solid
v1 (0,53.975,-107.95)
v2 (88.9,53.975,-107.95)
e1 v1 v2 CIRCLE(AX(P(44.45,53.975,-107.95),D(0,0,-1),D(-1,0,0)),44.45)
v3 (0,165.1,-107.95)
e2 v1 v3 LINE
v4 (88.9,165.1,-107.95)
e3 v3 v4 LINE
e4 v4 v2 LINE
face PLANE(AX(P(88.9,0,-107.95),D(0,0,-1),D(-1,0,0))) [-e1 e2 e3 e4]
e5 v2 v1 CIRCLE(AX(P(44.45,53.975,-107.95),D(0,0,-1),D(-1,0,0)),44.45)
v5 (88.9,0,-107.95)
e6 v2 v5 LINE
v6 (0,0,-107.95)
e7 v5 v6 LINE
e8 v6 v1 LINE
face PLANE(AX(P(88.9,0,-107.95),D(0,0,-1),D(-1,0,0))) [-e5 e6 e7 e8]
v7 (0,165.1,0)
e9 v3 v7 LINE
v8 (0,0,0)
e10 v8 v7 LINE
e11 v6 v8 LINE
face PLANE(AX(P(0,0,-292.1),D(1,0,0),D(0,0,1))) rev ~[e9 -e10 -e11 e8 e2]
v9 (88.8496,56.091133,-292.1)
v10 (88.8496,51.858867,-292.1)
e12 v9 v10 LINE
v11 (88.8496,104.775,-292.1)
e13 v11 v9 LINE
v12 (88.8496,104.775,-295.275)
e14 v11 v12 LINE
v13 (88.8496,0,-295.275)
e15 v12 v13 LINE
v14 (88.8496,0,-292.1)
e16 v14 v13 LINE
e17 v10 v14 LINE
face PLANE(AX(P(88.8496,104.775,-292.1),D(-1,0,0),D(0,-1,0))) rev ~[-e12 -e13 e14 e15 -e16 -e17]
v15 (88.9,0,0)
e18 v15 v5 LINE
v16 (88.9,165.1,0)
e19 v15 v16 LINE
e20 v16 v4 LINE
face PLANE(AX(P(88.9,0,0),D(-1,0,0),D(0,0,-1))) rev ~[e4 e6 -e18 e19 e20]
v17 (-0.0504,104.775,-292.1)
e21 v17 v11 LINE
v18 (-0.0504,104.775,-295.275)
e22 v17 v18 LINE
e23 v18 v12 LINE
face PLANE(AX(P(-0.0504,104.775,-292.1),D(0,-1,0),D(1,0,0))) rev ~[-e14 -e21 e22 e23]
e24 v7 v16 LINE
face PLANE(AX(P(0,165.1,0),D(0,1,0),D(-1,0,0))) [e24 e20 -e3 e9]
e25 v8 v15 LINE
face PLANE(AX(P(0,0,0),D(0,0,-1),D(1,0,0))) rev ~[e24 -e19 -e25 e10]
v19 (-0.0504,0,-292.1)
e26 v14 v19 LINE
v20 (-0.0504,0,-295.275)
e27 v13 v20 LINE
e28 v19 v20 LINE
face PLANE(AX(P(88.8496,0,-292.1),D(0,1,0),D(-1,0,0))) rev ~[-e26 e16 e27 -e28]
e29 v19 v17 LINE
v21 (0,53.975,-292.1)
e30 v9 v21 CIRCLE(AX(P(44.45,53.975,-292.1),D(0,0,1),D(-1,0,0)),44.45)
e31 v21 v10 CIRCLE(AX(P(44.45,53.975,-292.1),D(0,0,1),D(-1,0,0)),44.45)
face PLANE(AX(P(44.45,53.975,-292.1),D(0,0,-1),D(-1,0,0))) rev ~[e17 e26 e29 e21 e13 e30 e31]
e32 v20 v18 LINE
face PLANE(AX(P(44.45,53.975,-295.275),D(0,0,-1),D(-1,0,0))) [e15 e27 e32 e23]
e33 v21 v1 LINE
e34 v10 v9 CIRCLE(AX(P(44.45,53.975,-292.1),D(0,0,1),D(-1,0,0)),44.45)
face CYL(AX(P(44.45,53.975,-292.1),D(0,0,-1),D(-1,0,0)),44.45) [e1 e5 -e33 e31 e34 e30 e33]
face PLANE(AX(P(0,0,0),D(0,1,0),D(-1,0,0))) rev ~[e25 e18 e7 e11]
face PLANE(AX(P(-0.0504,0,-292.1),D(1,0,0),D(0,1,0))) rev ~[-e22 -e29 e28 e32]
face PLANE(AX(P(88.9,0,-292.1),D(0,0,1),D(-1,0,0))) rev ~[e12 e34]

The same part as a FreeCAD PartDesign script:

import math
import FreeCAD as App
import Part
import Sketcher
from FreeCAD import Vector
Q = App.Units.Quantity


def add_polygon(sketch, points):
    """Adds a closed chain of lines whose ends are joined by coincident constraints."""
    first, n = sketch.GeometryCount, len(points)
    for a, b in zip(points, points[1:] + points[:1]):
        sketch.addGeometry(Part.LineSegment(App.Vector(*a, 0), App.Vector(*b, 0)), False)
    for i in range(n):
        sketch.addConstraint(Sketcher.Constraint("Coincident", first + i, 2, first + (i + 1) % n, 1))

doc = App.newDocument("Part")
body = doc.addObject("PartDesign::Body", "Body")

# Sketch on XZ plane
sketch1 = body.newObject("Sketcher::SketchObject", "Sketch")
sketch1.AttachmentSupport = (doc.getObject("XZ_Plane"), [""])
sketch1.MapMode = "FlatFace"
add_polygon(sketch1, [(0, -292), (0, 0), (89, 0), (89, -292)])  # lines 0-3
sketch1.addConstraint([
    Sketcher.Constraint("Vertical", 0),
    Sketcher.Constraint("Horizontal", 1),
    Sketcher.Constraint("Vertical", 2),
    Sketcher.Constraint("Horizontal", 3),
    Sketcher.Constraint("Coincident", 0, 2, -1, 1),
    Sketcher.Constraint("DistanceX", 1, 1, 1, 2, Q("3.5 in")),
    Sketcher.Constraint("DistanceY", 0, 1, 0, 2, Q("11.5 in")),
])
pad1 = body.newObject("PartDesign::Pad", "Pad")
pad1.Profile = sketch1
pad1.Length = Q("6.5 in")
pad1.Reversed = True

# Sketch on XY plane
sketch2 = body.newObject("Sketcher::SketchObject", "Sketch001")
sketch2.AttachmentSupport = (doc.getObject("XY_Plane"), [""])
sketch2.MapMode = "FlatFace"
sketch2.AttachmentOffset = App.Placement(Vector(0, 0, -11.5 * 25.4), App.Rotation())
sketch2.addGeometry([
    Part.LineSegment(Vector(0, 54, 0), Vector(0, 165, 0)),  # 0
    Part.LineSegment(Vector(0, 165, 0), Vector(89, 165, 0)),  # 1
    Part.LineSegment(Vector(89, 165, 0), Vector(89, 54, 0)),  # 2
    Part.ArcOfCircle(Part.Circle(Vector(44, 54, 0), Vector(0, 0, 1), 44), math.radians(0), math.radians(180)),  # 3
    Part.LineSegment(Vector(0, 0, 0), Vector(0, 54, 0)),  # 4
    Part.ArcOfCircle(Part.Circle(Vector(44, 54, 0), Vector(0, 0, 1), 44), math.radians(180), math.radians(360)),  # 5
    Part.LineSegment(Vector(89, 54, 0), Vector(89, 0, 0)),  # 6
    Part.LineSegment(Vector(89, 0, 0), Vector(0, 0, 0)),  # 7
], False)
sketch2.addConstraint([
    Sketcher.Constraint("Coincident", 0, 2, 1, 1),
    Sketcher.Constraint("Coincident", 1, 2, 2, 1),
    Sketcher.Constraint("Tangent", 2, 2, 3, 1),
    Sketcher.Constraint("Tangent", 3, 2, 0, 1),
    Sketcher.Constraint("Tangent", 4, 2, 5, 1),
    Sketcher.Constraint("Tangent", 5, 2, 6, 1),
    Sketcher.Constraint("Coincident", 6, 2, 7, 1),
    Sketcher.Constraint("Coincident", 7, 2, 4, 1),
    Sketcher.Constraint("Vertical", 0),
    Sketcher.Constraint("Horizontal", 1),
    Sketcher.Constraint("Vertical", 2),
    Sketcher.Constraint("Vertical", 4),
    Sketcher.Constraint("Vertical", 6),
    Sketcher.Constraint("Horizontal", 7),
    Sketcher.Constraint("Coincident", 7, 2, -1, 1),
    Sketcher.Constraint("Coincident", 5, 3, 3, 3),
    Sketcher.Constraint("Equal", 3, 5),
    Sketcher.Constraint("Radius", 3, Q("1.75 in")),
    Sketcher.Constraint("DistanceY", 4, 1, 4, 2, Q("2.125 in")),
    Sketcher.Constraint("DistanceY", -1, 1, 0, 2, Q("6.5 in")),
])
pocket1 = body.newObject("PartDesign::Pocket", "Pocket")
pocket1.Profile = sketch2
pocket1.Length = Q("7.25 in")
pocket1.Reversed = True

# Sketch on XY plane
sketch3 = body.newObject("Sketcher::SketchObject", "Sketch002")
sketch3.AttachmentSupport = (doc.getObject("XY_Plane"), [""])
sketch3.MapMode = "FlatFace"
sketch3.AttachmentOffset = App.Placement(Vector(0, 0, -11.5 * 25.4), App.Rotation())
add_polygon(sketch3, [(89, 105), (89, 0), (0, 0), (0, 105)])  # lines 0-3
sketch3.addConstraint([
    Sketcher.Constraint("Vertical", 0),
    Sketcher.Constraint("Horizontal", 1),
    Sketcher.Constraint("Vertical", 2),
    Sketcher.Constraint("Horizontal", 3),
    Sketcher.Constraint("PointOnObject", 0, 2, -1),
    Sketcher.Constraint("DistanceX", 1, 2, 1, 1, Q("3.5 in")),
    Sketcher.Constraint("DistanceY", 0, 2, 0, 1, Q("4.125 in")),
    Sketcher.Constraint("DistanceX", -1, 1, 0, 2, 88.8496),
])
pad2 = body.newObject("PartDesign::Pad", "Pad001")
pad2.Profile = sketch3
pad2.Length = Q("0.125 in")
pad2.Reversed = True

doc.recompute()
